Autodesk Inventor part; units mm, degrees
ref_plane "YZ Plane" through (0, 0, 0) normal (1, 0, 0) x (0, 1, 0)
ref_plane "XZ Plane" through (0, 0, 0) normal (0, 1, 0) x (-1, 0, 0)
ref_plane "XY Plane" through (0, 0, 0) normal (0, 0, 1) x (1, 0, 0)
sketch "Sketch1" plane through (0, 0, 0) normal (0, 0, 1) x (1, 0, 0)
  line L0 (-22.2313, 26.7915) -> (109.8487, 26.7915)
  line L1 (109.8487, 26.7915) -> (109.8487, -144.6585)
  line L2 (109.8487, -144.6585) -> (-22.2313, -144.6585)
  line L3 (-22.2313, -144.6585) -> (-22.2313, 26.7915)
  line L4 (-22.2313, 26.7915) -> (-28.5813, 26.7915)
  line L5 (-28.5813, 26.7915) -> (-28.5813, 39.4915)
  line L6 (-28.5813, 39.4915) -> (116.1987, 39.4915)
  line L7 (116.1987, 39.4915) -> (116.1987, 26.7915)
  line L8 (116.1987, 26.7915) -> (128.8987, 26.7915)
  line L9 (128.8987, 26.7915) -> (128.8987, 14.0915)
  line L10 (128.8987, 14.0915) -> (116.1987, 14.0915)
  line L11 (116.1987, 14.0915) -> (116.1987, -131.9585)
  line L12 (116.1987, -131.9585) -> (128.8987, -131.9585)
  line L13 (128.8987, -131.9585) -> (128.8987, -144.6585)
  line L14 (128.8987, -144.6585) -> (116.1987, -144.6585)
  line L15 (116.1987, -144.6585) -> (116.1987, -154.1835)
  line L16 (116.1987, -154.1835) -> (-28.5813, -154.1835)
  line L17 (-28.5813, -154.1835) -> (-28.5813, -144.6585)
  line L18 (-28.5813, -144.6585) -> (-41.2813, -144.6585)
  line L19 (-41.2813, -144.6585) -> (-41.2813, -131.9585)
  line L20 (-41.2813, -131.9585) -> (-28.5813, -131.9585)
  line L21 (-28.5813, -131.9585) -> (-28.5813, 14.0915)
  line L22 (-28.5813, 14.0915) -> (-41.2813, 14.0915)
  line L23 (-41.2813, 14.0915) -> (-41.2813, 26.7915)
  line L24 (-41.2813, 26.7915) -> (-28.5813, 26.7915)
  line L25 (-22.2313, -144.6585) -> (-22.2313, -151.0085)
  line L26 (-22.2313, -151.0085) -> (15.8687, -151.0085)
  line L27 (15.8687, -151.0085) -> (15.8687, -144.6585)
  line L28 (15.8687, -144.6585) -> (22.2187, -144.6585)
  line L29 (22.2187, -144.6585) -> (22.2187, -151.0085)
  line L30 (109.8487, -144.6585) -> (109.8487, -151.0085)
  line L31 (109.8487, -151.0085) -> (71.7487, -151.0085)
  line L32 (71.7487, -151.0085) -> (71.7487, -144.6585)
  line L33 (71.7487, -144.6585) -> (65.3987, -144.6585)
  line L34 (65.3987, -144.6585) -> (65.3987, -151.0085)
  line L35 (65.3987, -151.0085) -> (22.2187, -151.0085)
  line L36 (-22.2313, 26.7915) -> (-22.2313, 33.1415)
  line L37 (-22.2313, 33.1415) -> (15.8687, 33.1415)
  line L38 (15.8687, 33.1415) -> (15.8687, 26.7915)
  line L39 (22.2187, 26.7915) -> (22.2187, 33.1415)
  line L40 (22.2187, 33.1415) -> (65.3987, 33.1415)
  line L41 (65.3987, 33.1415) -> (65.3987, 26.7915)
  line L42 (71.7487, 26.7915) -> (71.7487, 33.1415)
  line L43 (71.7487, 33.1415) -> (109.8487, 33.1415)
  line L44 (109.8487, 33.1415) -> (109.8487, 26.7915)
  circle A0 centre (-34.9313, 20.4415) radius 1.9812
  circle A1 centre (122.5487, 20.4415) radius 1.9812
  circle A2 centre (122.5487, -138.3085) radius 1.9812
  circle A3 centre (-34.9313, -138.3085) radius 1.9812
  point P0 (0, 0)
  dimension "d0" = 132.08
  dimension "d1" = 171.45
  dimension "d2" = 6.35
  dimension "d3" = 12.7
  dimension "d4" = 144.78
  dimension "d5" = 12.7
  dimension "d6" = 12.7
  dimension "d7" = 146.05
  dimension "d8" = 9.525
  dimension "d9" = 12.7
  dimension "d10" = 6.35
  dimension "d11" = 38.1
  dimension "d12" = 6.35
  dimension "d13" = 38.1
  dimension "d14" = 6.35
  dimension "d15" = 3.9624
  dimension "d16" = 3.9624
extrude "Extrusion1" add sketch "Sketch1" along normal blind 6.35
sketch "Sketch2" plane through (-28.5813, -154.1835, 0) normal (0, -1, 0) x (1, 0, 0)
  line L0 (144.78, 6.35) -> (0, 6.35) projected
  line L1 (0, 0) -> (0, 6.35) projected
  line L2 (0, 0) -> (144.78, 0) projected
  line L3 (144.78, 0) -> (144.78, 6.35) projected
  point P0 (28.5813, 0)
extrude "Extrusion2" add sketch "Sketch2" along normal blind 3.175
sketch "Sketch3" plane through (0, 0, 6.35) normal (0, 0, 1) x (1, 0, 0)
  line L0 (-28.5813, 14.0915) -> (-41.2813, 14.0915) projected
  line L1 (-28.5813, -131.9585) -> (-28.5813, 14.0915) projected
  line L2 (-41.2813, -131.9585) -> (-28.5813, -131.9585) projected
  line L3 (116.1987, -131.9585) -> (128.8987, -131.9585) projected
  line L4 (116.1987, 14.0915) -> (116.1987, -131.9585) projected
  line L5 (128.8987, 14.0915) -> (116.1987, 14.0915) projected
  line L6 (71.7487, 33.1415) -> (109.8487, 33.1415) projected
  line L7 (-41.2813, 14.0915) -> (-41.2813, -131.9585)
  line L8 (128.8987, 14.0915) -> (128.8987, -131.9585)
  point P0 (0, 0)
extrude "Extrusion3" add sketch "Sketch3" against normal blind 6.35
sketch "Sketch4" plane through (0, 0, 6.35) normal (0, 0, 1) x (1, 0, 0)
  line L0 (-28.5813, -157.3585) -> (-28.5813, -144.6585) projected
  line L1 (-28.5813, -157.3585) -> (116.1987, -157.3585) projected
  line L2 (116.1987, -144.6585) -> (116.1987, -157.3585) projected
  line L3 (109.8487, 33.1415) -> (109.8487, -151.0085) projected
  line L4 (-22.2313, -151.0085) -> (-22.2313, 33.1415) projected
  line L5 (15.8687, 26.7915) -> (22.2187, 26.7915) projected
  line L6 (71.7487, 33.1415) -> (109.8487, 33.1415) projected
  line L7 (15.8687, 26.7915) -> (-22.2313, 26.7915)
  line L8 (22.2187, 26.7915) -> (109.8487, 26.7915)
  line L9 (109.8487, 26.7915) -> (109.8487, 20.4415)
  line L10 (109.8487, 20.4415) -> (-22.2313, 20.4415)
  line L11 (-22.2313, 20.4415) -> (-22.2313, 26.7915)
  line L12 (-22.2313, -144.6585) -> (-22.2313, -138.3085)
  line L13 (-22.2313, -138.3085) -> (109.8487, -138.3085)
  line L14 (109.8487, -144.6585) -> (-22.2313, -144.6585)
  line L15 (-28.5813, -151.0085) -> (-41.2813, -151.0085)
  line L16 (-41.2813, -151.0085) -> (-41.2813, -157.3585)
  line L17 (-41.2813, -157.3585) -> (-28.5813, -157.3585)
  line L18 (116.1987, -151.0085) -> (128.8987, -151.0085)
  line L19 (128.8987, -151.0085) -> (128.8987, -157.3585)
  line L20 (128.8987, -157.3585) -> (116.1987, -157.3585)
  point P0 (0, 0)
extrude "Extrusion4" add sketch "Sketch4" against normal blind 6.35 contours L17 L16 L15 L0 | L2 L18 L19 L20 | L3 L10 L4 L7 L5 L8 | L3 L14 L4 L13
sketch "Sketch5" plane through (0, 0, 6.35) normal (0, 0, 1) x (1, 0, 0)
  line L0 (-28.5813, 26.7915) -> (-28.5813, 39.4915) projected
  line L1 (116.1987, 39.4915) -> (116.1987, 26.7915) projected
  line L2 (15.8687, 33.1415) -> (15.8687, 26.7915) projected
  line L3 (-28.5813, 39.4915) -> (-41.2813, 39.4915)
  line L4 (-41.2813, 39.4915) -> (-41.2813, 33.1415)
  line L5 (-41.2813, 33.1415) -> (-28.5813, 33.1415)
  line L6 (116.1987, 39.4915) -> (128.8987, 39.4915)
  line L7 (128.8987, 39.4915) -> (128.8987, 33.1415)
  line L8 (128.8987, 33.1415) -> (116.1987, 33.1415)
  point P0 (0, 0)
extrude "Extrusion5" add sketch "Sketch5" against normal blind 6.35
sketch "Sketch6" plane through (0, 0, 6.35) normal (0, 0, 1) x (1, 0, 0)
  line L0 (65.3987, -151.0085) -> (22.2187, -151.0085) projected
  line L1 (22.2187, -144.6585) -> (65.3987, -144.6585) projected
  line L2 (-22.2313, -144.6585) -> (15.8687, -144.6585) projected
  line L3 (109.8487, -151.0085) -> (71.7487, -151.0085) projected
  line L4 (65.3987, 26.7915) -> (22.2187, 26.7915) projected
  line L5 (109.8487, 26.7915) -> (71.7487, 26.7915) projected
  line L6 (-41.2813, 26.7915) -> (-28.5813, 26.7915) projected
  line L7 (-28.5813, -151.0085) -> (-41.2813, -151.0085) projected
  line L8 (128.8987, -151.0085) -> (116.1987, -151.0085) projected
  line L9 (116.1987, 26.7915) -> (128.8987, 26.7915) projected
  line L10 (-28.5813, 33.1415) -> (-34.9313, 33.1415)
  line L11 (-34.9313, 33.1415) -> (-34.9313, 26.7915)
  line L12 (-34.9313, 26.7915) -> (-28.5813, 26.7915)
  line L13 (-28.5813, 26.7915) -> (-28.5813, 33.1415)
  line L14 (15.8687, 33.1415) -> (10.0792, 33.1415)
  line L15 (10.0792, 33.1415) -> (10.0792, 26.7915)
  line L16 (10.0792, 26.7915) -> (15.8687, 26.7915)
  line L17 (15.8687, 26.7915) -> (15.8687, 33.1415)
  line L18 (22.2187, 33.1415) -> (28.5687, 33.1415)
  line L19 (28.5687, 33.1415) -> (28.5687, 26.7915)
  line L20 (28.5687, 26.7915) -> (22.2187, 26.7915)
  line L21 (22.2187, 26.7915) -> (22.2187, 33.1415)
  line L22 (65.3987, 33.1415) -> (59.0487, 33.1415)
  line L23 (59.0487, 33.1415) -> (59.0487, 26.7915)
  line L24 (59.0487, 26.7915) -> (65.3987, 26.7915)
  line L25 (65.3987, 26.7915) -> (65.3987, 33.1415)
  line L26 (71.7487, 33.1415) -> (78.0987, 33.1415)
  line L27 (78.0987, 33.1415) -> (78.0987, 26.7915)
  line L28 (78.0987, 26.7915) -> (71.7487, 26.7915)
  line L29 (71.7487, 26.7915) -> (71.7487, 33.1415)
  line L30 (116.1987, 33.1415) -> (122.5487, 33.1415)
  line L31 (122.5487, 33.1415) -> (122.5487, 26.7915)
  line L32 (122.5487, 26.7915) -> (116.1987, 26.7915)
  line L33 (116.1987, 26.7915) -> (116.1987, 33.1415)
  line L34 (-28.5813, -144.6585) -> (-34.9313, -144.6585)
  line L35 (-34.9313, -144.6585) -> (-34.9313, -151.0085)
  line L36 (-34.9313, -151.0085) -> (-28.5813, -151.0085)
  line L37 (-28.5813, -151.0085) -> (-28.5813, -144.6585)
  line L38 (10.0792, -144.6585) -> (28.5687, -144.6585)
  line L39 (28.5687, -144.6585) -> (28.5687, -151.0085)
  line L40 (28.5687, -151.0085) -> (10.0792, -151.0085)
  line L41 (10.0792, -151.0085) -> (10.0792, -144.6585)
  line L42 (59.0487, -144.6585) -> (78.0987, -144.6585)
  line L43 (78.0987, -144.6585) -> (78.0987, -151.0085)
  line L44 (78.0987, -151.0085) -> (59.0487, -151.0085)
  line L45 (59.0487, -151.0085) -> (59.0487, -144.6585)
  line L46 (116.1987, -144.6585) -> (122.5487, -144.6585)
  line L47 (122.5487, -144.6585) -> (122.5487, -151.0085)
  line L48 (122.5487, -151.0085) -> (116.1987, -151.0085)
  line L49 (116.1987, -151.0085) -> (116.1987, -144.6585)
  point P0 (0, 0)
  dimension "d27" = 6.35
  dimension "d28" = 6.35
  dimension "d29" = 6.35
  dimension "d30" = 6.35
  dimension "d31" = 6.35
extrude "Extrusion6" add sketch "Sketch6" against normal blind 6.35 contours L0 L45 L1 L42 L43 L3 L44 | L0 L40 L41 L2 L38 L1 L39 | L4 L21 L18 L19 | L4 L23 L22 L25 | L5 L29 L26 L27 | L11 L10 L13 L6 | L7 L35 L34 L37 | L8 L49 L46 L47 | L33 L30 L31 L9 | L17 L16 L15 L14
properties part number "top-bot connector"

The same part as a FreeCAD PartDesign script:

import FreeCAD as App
import Part
import Sketcher
Q = App.Units.Quantity


def add_polygon(sketch, points):
    """Adds a closed chain of lines whose ends are joined by coincident constraints."""
    first, n = sketch.GeometryCount, len(points)
    for a, b in zip(points, points[1:] + points[:1]):
        sketch.addGeometry(Part.LineSegment(App.Vector(*a, 0), App.Vector(*b, 0)), False)
    for i in range(n):
        sketch.addConstraint(Sketcher.Constraint("Coincident", first + i, 2, first + (i + 1) % n, 1))

doc = App.newDocument("Part")
body = doc.addObject("PartDesign::Body", "Body")

# Sketch on XY plane
sketch1 = doc.addObject("Sketcher::SketchObject", "Sketch")
body.addObject(sketch1)
sketch1.AttachmentSupport = (doc.XY_Plane, [""])
sketch1.MapMode = "FlatFace"
add_polygon(sketch1, [(-28.6, 39.5), (-28.6, 26.8), (-41.3, 26.8), (-41.3, 14.1), (-28.6, 14.1), (-28.6, -132), (-41.3, -132), (-41.3, -144.7), (-28.6, -144.7), (-28.6, -154.2), (116.2, -154.2), (116.2, -144.7), (128.9, -144.7), (128.9, -132), (116.2, -132), (116.2, 14.1), (128.9, 14.1), (128.9, 26.8), (116.2, 26.8), (116.2, 39.5)])  # lines 0-19
sketch1.addGeometry(Part.Circle(App.Vector(-34.9, -138.3, 0), App.Vector(0, 0, 1), 2), False)  # 20
sketch1.addGeometry(Part.Circle(App.Vector(122.5, -138.3, 0), App.Vector(0, 0, 1), 2), False)  # 21
add_polygon(sketch1, [(-22.2, -151), (-22.2, 26.8), (-22.2, 33.1), (15.9, 33.1), (15.9, 26.8), (22.2, 26.8), (22.2, 33.1), (65.4, 33.1), (65.4, 26.8), (71.7, 26.8), (71.7, 33.1), (109.8, 33.1), (109.8, -151), (71.7, -151), (71.7, -144.7), (65.4, -144.7), (65.4, -151), (22.2, -151), (22.2, -144.7), (15.9, -144.7), (15.9, -151)])  # lines 22-42
sketch1.addGeometry(Part.Circle(App.Vector(-34.9, 20.4, 0), App.Vector(0, 0, 1), 2), False)  # 43
sketch1.addGeometry(Part.Circle(App.Vector(122.5, 20.4, 0), App.Vector(0, 0, 1), 2), False)  # 44
sketch1.addConstraint([
    Sketcher.Constraint("Vertical", 0),
    Sketcher.Constraint("Horizontal", 1),
    Sketcher.Constraint("Vertical", 2),
    Sketcher.Constraint("Horizontal", 3),
    Sketcher.Constraint("Vertical", 4),
    Sketcher.Constraint("Horizontal", 5),
    Sketcher.Constraint("Vertical", 6),
    Sketcher.Constraint("Horizontal", 7),
    Sketcher.Constraint("Vertical", 8),
    Sketcher.Constraint("Horizontal", 9),
    Sketcher.Constraint("Vertical", 10),
    Sketcher.Constraint("Horizontal", 11),
    Sketcher.Constraint("Vertical", 12),
    Sketcher.Constraint("Horizontal", 13),
    Sketcher.Constraint("Vertical", 14),
    Sketcher.Constraint("Horizontal", 15),
    Sketcher.Constraint("Vertical", 16),
    Sketcher.Constraint("Horizontal", 17),
    Sketcher.Constraint("Vertical", 18),
    Sketcher.Constraint("Horizontal", 19),
    Sketcher.Constraint("Vertical", 22),
    Sketcher.Constraint("Vertical", 23),
    Sketcher.Constraint("Horizontal", 24),
    Sketcher.Constraint("Vertical", 25),
    Sketcher.Constraint("Horizontal", 26),
    Sketcher.Constraint("Vertical", 27),
    Sketcher.Constraint("Horizontal", 28),
    Sketcher.Constraint("Vertical", 29),
    Sketcher.Constraint("Horizontal", 30),
    Sketcher.Constraint("Vertical", 31),
    Sketcher.Constraint("Horizontal", 32),
    Sketcher.Constraint("Vertical", 33),
    Sketcher.Constraint("Horizontal", 34),
    Sketcher.Constraint("Vertical", 35),
    Sketcher.Constraint("Horizontal", 36),
    Sketcher.Constraint("Vertical", 37),
    Sketcher.Constraint("Horizontal", 38),
    Sketcher.Constraint("Vertical", 39),
    Sketcher.Constraint("Horizontal", 40),
    Sketcher.Constraint("Vertical", 41),
    Sketcher.Constraint("Horizontal", 42),
    Sketcher.Constraint("Equal", 20, 21),
    Sketcher.Constraint("Equal", 21, 43),
    Sketcher.Constraint("Equal", 43, 44),
    Sketcher.Constraint("Horizontal", 20, 3, 21, 3),
    Sketcher.Constraint("Horizontal", 43, 3, 44, 3),
    Sketcher.Constraint("Horizontal", 7, 2, 10, 2),
    Sketcher.Constraint("Horizontal", 5, 2, 12, 2),
    Sketcher.Constraint("Horizontal", 3, 2, 14, 2),
    Sketcher.Constraint("Horizontal", 1, 2, 16, 2),
    Sketcher.Constraint("Horizontal", 17, 2, 22, 2),
    Sketcher.Constraint("Horizontal", 22, 2, 25, 2),
    Sketcher.Constraint("Horizontal", 24, 2, 27, 2),
    Sketcher.Constraint("Horizontal", 26, 2, 29, 2),
    Sketcher.Constraint("Horizontal", 28, 2, 31, 2),
    Sketcher.Constraint("Horizontal", 11, 2, 35, 2),
    Sketcher.Constraint("Horizontal", 34, 2, 37, 2),
    Sketcher.Constraint("Horizontal", 36, 2, 39, 2),
    Sketcher.Constraint("Horizontal", 38, 2, 41, 2),
    Sketcher.Constraint("Vertical", 20, 3, 43, 3),
    Sketcher.Constraint("Vertical", 21, 3, 44, 3),
    Sketcher.Constraint("Vertical", 0, 2, 3, 2),
    Sketcher.Constraint("Vertical", 2, 2, 5, 2),
    Sketcher.Constraint("Vertical", 4, 2, 7, 2),
    Sketcher.Constraint("Vertical", 10, 2, 13, 2),
    Sketcher.Constraint("Vertical", 12, 2, 15, 2),
    Sketcher.Constraint("Vertical", 14, 2, 17, 2),
    Sketcher.Constraint("Vertical", 31, 2, 34, 2),
    Sketcher.Constraint("Vertical", 29, 2, 36, 2),
    Sketcher.Constraint("Vertical", 27, 2, 38, 2),
    Sketcher.Constraint("Vertical", 25, 2, 40, 2),
    Sketcher.Constraint("Equal", 7, 11),
    Sketcher.Constraint("Equal", 26, 30),
    Sketcher.Constraint("Equal", 24, 32),
    Sketcher.Constraint("Equal", 17, 0),
    Sketcher.Constraint("Equal", 0, 2),
    Sketcher.Constraint("Equal", 2, 6),
    Sketcher.Constraint("Equal", 40, 23),
    Sketcher.Constraint("Equal", 31, 35),
    Sketcher.Constraint("Diameter", 20, Q("0.156 in")),
    Sketcher.Constraint("DistanceX", 1, 2, 1, 1, Q("0.5 in")),
    Sketcher.Constraint("DistanceX", 9, 1, 9, 2, Q("5.7 in")),
    Sketcher.Constraint("DistanceX", 24, 1, 24, 2, Q("1.5 in")),
    Sketcher.Constraint("DistanceX", 26, 1, 26, 2, Q("0.25 in")),
    Sketcher.Constraint("DistanceY", 4, 2, 4, 1, Q("5.75 in")),
    Sketcher.Constraint("DistanceX", 43, 3, 22, 2, Q("0.5 in")),
    Sketcher.Constraint("DistanceY", 43, 3, 23, 2, Q("0.5 in")),
    Sketcher.Constraint("DistanceX", 32, 2, 44, 3, Q("0.5 in")),
    Sketcher.Constraint("DistanceY", 33, 2, 21, 3, Q("0.5 in")),
    Sketcher.Constraint("DistanceY", 8, 2, 8, 1, Q("0.375 in")),
    Sketcher.Constraint("DistanceX", 43, 3, 0, 2, Q("0.25 in")),
    Sketcher.Constraint("DistanceX", 9, 2, 21, 3, Q("0.25 in")),
    Sketcher.Constraint("DistanceX", 20, 3, -1, 1, Q("34.9313 mm")),
    Sketcher.Constraint("DistanceY", 20, 3, -1, 1, Q("138.3085 mm")),
])
pad1 = doc.addObject("PartDesign::Pad", "Pad")
body.addObject(pad1)
pad1.Profile = sketch1
pad1.Length = Q("0.25 in")

# Sketch on XZ plane
sketch2 = doc.addObject("Sketcher::SketchObject", "Sketch001")
body.addObject(sketch2)
sketch2.AttachmentSupport = (doc.XZ_Plane, [""])
sketch2.MapMode = "FlatFace"
sketch2.AttachmentOffset = App.Placement(App.Vector(0, 0, 154.1835), App.Rotation())
add_polygon(sketch2, [(116, 0), (116, 6), (-29, 6), (-29, 0)])  # lines 0-3
sketch2.addConstraint([
    Sketcher.Constraint("Vertical", 0),
    Sketcher.Constraint("Horizontal", 1),
    Sketcher.Constraint("Vertical", 2),
    Sketcher.Constraint("Horizontal", 3),
    Sketcher.Constraint("PointOnObject", 2, 2, -1),
    Sketcher.Constraint("DistanceX", 1, 2, 1, 1, Q("5.7 in")),
    Sketcher.Constraint("DistanceY", 0, 1, 0, 2, Q("0.25 in")),
    Sketcher.Constraint("DistanceX", -1, 1, 0, 2, Q("116.1987 mm")),
])
pad2 = doc.addObject("PartDesign::Pad", "Pad001")
body.addObject(pad2)
pad2.Profile = sketch2
pad2.Length = Q("0.125 in")

# Sketch on XY plane
sketch3 = doc.addObject("Sketcher::SketchObject", "Sketch002")
body.addObject(sketch3)
sketch3.AttachmentSupport = (doc.XY_Plane, [""])
sketch3.MapMode = "FlatFace"
sketch3.AttachmentOffset = App.Placement(App.Vector(0, 0, 0.25 * 25.4), App.Rotation())
add_polygon(sketch3, [(-29, -132), (-29, 14), (-41, 14), (-41, -132)])  # lines 0-3
add_polygon(sketch3, [(116, 14), (116, -132), (129, -132), (129, 14)])  # lines 4-7
sketch3.addConstraint([
    Sketcher.Constraint("Vertical", 0),
    Sketcher.Constraint("Horizontal", 1),
    Sketcher.Constraint("Vertical", 2),
    Sketcher.Constraint("Horizontal", 3),
    Sketcher.Constraint("Vertical", 4),
    Sketcher.Constraint("Horizontal", 5),
    Sketcher.Constraint("Vertical", 6),
    Sketcher.Constraint("Horizontal", 7),
    Sketcher.Constraint("Horizontal", 3, 2, 4, 2),
    Sketcher.Constraint("Horizontal", 1, 2, 6, 2),
    Sketcher.Constraint("Equal", 3, 5),
    Sketcher.Constraint("DistanceX", 1, 2, 1, 1, Q("0.5 in")),
    Sketcher.Constraint("DistanceY", 0, 1, 0, 2, Q("5.75 in")),
    Sketcher.Constraint("DistanceX", 3, 2, 4, 2, Q("5.7 in")),
    Sketcher.Constraint("DistanceX", 0, 2, -1, 1, Q("28.5813 mm")),
    Sketcher.Constraint("DistanceY", -1, 1, 0, 2, Q("14.0915 mm")),
])
pad3 = doc.addObject("PartDesign::Pad", "Pad002")
body.addObject(pad3)
pad3.Profile = sketch3
pad3.Length = Q("0.25 in")
pad3.Reversed = True

# Sketch on XY plane
sketch4 = doc.addObject("Sketcher::SketchObject", "Sketch003")
body.addObject(sketch4)
sketch4.AttachmentSupport = (doc.XY_Plane, [""])
sketch4.MapMode = "FlatFace"
sketch4.AttachmentOffset = App.Placement(App.Vector(0, 0, 0.25 * 25.4), App.Rotation())
add_polygon(sketch4, [(-41, -157), (-29, -157), (-29, -151), (-41, -151)])  # lines 0-3
add_polygon(sketch4, [(116, -151), (116, -157), (129, -157), (129, -151)])  # lines 4-7
add_polygon(sketch4, [(110, 20), (110, 27), (-22, 27), (-22, 20)])  # lines 8-11
add_polygon(sketch4, [(110, -145), (110, -138), (-22, -138), (-22, -145)])  # lines 12-15
sketch4.addConstraint([
    Sketcher.Constraint("Horizontal", 0),
    Sketcher.Constraint("Vertical", 1),
    Sketcher.Constraint("Horizontal", 2),
    Sketcher.Constraint("Vertical", 3),
    Sketcher.Constraint("Vertical", 4),
    Sketcher.Constraint("Horizontal", 5),
    Sketcher.Constraint("Vertical", 6),
    Sketcher.Constraint("Horizontal", 7),
    Sketcher.Constraint("Vertical", 8),
    Sketcher.Constraint("Horizontal", 9),
    Sketcher.Constraint("Vertical", 10),
    Sketcher.Constraint("Horizontal", 11),
    Sketcher.Constraint("Vertical", 12),
    Sketcher.Constraint("Horizontal", 13),
    Sketcher.Constraint("Vertical", 14),
    Sketcher.Constraint("Horizontal", 15),
    Sketcher.Constraint("Horizontal", 3, 2, 4, 2),
    Sketcher.Constraint("Horizontal", 2, 2, 6, 2),
    Sketcher.Constraint("Vertical", 11, 2, 12, 2),
    Sketcher.Constraint("Vertical", 10, 2, 13, 2),
    Sketcher.Constraint("Equal", 2, 5),
    Sketcher.Constraint("Equal", 6, 8),
    Sketcher.Constraint("Equal", 10, 12),
    Sketcher.Constraint("DistanceX", 0, 1, 0, 2, Q("0.5 in")),
    Sketcher.Constraint("DistanceX", 9, 2, 9, 1, Q("5.2 in")),
    Sketcher.Constraint("DistanceY", 7, 2, 8, 2, Q("7 in")),
    Sketcher.Constraint("DistanceY", 1, 1, 1, 2, Q("0.25 in")),
    Sketcher.Constraint("DistanceX", 0, 2, 4, 2, Q("5.7 in")),
    Sketcher.Constraint("DistanceY", 7, 2, 12, 2, Q("0.5 in")),
    Sketcher.Constraint("DistanceX", 8, 2, 7, 2, Q("0.25 in")),
    Sketcher.Constraint("DistanceX", 0, 2, -1, 1, Q("28.5813 mm")),
    Sketcher.Constraint("DistanceY", 0, 2, -1, 1, Q("157.3585 mm")),
])
pad4 = doc.addObject("PartDesign::Pad", "Pad003")
body.addObject(pad4)
pad4.Profile = sketch4
pad4.Length = Q("0.25 in")
pad4.Reversed = True

# Sketch on XY plane
sketch5 = doc.addObject("Sketcher::SketchObject", "Sketch004")
body.addObject(sketch5)
sketch5.AttachmentSupport = (doc.XY_Plane, [""])
sketch5.MapMode = "FlatFace"
sketch5.AttachmentOffset = App.Placement(App.Vector(0, 0, 0.25 * 25.4), App.Rotation())
add_polygon(sketch5, [(-41, 33), (-29, 33), (-29, 39), (-41, 39)])  # lines 0-3
add_polygon(sketch5, [(129, 39), (116, 39), (116, 33), (129, 33)])  # lines 4-7
sketch5.addConstraint([
    Sketcher.Constraint("Horizontal", 0),
    Sketcher.Constraint("Vertical", 1),
    Sketcher.Constraint("Horizontal", 2),
    Sketcher.Constraint("Vertical", 3),
    Sketcher.Constraint("Horizontal", 4),
    Sketcher.Constraint("Vertical", 5),
    Sketcher.Constraint("Horizontal", 6),
    Sketcher.Constraint("Vertical", 7),
    Sketcher.Constraint("Horizontal", 2, 2, 4, 2),
    Sketcher.Constraint("Horizontal", 3, 2, 5, 2),
    Sketcher.Constraint("Equal", 2, 4),
    Sketcher.Constraint("DistanceX", 0, 1, 0, 2, Q("0.5 in")),
    Sketcher.Constraint("DistanceY", 1, 1, 1, 2, Q("0.25 in")),
    Sketcher.Constraint("DistanceX", 1, 2, 4, 2, Q("5.7 in")),
    Sketcher.Constraint("DistanceX", 0, 2, -1, 1, Q("28.5813 mm")),
    Sketcher.Constraint("DistanceY", -1, 1, 0, 2, Q("33.1415 mm")),
])
pad5 = doc.addObject("PartDesign::Pad", "Pad004")
body.addObject(pad5)
pad5.Profile = sketch5
pad5.Length = Q("0.25 in")
pad5.Reversed = True

# Sketch on XY plane
sketch6 = doc.addObject("Sketcher::SketchObject", "Sketch005")
body.addObject(sketch6)
sketch6.AttachmentSupport = (doc.XY_Plane, [""])
sketch6.MapMode = "FlatFace"
sketch6.AttachmentOffset = App.Placement(App.Vector(0, 0, 0.25 * 25.4), App.Rotation())
add_polygon(sketch6, [(59, -151), (78, -151), (78, -145), (59, -145)])  # lines 0-3
add_polygon(sketch6, [(10, -151), (29, -151), (29, -145), (10, -145)])  # lines 4-7
add_polygon(sketch6, [(22, 27), (29, 27), (29, 33), (22, 33)])  # lines 8-11
add_polygon(sketch6, [(59, 27), (65, 27), (65, 33), (59, 33)])  # lines 12-15
add_polygon(sketch6, [(72, 27), (78, 27), (78, 33), (72, 33)])  # lines 16-19
add_polygon(sketch6, [(-35, 33), (-35, 27), (-29, 27), (-29, 33)])  # lines 20-23
add_polygon(sketch6, [(-35, -151), (-29, -151), (-29, -145), (-35, -145)])  # lines 24-27
add_polygon(sketch6, [(116, -151), (123, -151), (123, -145), (116, -145)])  # lines 28-31
add_polygon(sketch6, [(116, 33), (116, 27), (123, 27), (123, 33)])  # lines 32-35
add_polygon(sketch6, [(16, 27), (16, 33), (10, 33), (10, 27)])  # lines 36-39
sketch6.addConstraint([
    Sketcher.Constraint("Horizontal", 0),
    Sketcher.Constraint("Vertical", 1),
    Sketcher.Constraint("Horizontal", 2),
    Sketcher.Constraint("Vertical", 3),
    Sketcher.Constraint("Horizontal", 4),
    Sketcher.Constraint("Vertical", 5),
    Sketcher.Constraint("Horizontal", 6),
    Sketcher.Constraint("Vertical", 7),
    Sketcher.Constraint("Horizontal", 8),
    Sketcher.Constraint("Vertical", 9),
    Sketcher.Constraint("Horizontal", 10),
    Sketcher.Constraint("Vertical", 11),
    Sketcher.Constraint("Horizontal", 12),
    Sketcher.Constraint("Vertical", 13),
    Sketcher.Constraint("Horizontal", 14),
    Sketcher.Constraint("Vertical", 15),
    Sketcher.Constraint("Horizontal", 16),
    Sketcher.Constraint("Vertical", 17),
    Sketcher.Constraint("Horizontal", 18),
    Sketcher.Constraint("Vertical", 19),
    Sketcher.Constraint("Vertical", 20),
    Sketcher.Constraint("Horizontal", 21),
    Sketcher.Constraint("Vertical", 22),
    Sketcher.Constraint("Horizontal", 23),
    Sketcher.Constraint("Horizontal", 24),
    Sketcher.Constraint("Vertical", 25),
    Sketcher.Constraint("Horizontal", 26),
    Sketcher.Constraint("Vertical", 27),
    Sketcher.Constraint("Horizontal", 28),
    Sketcher.Constraint("Vertical", 29),
    Sketcher.Constraint("Horizontal", 30),
    Sketcher.Constraint("Vertical", 31),
    Sketcher.Constraint("Vertical", 32),
    Sketcher.Constraint("Horizontal", 33),
    Sketcher.Constraint("Vertical", 34),
    Sketcher.Constraint("Horizontal", 35),
    Sketcher.Constraint("Vertical", 36),
    Sketcher.Constraint("Horizontal", 37),
    Sketcher.Constraint("Vertical", 38),
    Sketcher.Constraint("Horizontal", 39),
    Sketcher.Constraint("Horizontal", 3, 2, 4, 2),
    Sketcher.Constraint("Horizontal", 2, 2, 5, 2),
    Sketcher.Constraint("Horizontal", 11, 2, 12, 2),
    Sketcher.Constraint("Horizontal", 10, 2, 13, 2),
    Sketcher.Constraint("Horizontal", 15, 2, 16, 2),
    Sketcher.Constraint("Horizontal", 14, 2, 17, 2),
    Sketcher.Constraint("Horizontal", 19, 2, 20, 2),
    Sketcher.Constraint("Horizontal", 18, 2, 22, 2),
    Sketcher.Constraint("Horizontal", 7, 2, 24, 2),
    Sketcher.Constraint("Horizontal", 6, 2, 25, 2),
    Sketcher.Constraint("Horizontal", 27, 2, 28, 2),
    Sketcher.Constraint("Horizontal", 26, 2, 29, 2),
    Sketcher.Constraint("Horizontal", 21, 2, 32, 2),
    Sketcher.Constraint("Horizontal", 23, 2, 34, 2),
    Sketcher.Constraint("Horizontal", 35, 2, 36, 2),
    Sketcher.Constraint("Horizontal", 33, 2, 38, 2),
    Sketcher.Constraint("Vertical", 5, 2, 8, 2),
    Sketcher.Constraint("Vertical", 3, 2, 14, 2),
    Sketcher.Constraint("Vertical", 1, 2, 16, 2),
    Sketcher.Constraint("Vertical", 22, 2, 24, 2),
    Sketcher.Constraint("Vertical", 23, 2, 26, 2),
    Sketcher.Constraint("Vertical", 31, 2, 32, 2),
    Sketcher.Constraint("Vertical", 29, 2, 33, 2),
    Sketcher.Constraint("Vertical", 7, 2, 37, 2),
    Sketcher.Constraint("Equal", 10, 12),
    Sketcher.Constraint("Equal", 14, 16),
    Sketcher.Constraint("Equal", 18, 21),
    Sketcher.Constraint("Equal", 26, 28),
    Sketcher.Constraint("Equal", 35, 1),
    Sketcher.Constraint("Equal", 7, 9),
    Sketcher.Constraint("DistanceX", 8, 1, 8, 2, Q("0.25 in")),
    Sketcher.Constraint("DistanceX", 13, 2, 18, 2, Q("0.25 in")),
    Sketcher.Constraint("DistanceX", 36, 2, 10, 2, Q("0.25 in")),
    Sketcher.Constraint("DistanceY", 4, 2, 8, 2, Q("7 in")),
    Sketcher.Constraint("DistanceX", 21, 2, 11, 2, Q("2 in")),
    Sketcher.Constraint("DistanceX", 12, 2, 32, 2, Q("2 in")),
    Sketcher.Constraint("DistanceX", 4, 2, 3, 2, Q("1.2 in")),
    Sketcher.Constraint("DistanceX", 4, 1, 4, 2, Q("18.4895 mm")),
    Sketcher.Constraint("DistanceX", -1, 1, 0, 2, Q("78.0987 mm")),
    Sketcher.Constraint("DistanceY", 0, 2, -1, 1, Q("151.0085 mm")),
])
pad6 = doc.addObject("PartDesign::Pad", "Pad005")
body.addObject(pad6)
pad6.Profile = sketch6
pad6.Length = Q("0.25 in")
pad6.Reversed = True

doc.recompute()
